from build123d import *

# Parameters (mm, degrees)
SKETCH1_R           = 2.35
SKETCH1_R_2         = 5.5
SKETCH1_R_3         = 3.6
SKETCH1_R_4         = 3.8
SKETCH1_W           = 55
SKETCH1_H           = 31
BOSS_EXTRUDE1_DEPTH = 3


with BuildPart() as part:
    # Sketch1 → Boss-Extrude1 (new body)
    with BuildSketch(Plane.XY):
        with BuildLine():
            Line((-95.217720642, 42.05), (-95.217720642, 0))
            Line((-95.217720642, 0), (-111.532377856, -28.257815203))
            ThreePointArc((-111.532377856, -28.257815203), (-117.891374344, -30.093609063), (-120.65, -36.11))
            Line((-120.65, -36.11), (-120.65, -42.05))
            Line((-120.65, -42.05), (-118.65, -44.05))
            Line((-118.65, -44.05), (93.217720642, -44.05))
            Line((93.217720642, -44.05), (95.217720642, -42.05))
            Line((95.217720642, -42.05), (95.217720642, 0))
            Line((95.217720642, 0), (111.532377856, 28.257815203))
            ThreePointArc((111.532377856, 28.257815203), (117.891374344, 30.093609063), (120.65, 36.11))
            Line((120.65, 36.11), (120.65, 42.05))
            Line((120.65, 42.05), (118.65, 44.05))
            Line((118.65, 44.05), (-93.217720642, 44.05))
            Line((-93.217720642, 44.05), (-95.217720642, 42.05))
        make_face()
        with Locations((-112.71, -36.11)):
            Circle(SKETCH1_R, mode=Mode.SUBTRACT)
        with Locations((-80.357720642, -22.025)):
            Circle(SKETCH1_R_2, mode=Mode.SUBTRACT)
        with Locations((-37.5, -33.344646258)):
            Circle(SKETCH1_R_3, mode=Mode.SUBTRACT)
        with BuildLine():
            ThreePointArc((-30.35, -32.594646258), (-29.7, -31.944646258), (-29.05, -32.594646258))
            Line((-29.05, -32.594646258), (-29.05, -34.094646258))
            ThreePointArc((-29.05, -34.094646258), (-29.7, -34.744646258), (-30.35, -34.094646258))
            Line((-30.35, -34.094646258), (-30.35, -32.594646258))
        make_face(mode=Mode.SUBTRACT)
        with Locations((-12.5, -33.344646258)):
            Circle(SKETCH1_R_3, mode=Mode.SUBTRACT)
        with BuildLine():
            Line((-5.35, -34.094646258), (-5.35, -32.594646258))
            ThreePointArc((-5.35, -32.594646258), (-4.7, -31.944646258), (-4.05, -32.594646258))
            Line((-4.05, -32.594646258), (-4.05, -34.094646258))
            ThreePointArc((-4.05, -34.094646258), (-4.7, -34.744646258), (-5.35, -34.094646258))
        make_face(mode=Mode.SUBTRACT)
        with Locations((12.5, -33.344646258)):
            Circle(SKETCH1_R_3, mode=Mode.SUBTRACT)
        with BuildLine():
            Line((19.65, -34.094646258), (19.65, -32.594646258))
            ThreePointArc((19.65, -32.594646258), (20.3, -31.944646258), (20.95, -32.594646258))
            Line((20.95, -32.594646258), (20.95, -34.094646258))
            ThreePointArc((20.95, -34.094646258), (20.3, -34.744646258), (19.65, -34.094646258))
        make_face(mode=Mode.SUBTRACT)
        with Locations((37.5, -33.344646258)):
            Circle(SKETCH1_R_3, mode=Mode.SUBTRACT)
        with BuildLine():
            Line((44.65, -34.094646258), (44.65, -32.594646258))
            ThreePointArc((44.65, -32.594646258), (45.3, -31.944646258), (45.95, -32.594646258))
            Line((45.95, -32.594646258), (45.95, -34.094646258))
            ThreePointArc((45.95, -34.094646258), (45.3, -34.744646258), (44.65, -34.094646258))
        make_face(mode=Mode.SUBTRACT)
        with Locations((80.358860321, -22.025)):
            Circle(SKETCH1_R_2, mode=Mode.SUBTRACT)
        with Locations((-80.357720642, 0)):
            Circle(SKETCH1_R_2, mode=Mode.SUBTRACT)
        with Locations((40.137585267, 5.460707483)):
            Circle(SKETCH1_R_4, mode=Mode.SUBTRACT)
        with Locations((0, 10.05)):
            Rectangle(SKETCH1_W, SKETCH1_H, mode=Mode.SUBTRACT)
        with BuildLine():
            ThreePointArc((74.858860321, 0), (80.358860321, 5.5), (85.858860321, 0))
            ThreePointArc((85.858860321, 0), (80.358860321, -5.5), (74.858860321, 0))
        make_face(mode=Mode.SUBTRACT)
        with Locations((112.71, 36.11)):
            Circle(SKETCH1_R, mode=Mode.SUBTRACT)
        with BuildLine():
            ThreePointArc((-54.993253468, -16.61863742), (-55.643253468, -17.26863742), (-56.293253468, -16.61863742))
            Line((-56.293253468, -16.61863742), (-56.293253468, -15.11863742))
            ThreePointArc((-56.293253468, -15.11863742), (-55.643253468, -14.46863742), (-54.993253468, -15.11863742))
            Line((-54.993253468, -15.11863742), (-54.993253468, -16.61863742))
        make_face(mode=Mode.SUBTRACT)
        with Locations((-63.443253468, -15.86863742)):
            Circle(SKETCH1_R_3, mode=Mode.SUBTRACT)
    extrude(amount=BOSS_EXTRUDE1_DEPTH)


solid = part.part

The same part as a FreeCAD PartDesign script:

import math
import FreeCAD as App
import Part
import Sketcher
from FreeCAD import Vector
Q = App.Units.Quantity

doc = App.newDocument("Part")
params = doc.addObject("Spreadsheet::Sheet", "Params")
for row, (alias, value) in enumerate([
    ("sketch1_diameter", "11 mm"),
    ("sketch1_diameter2", "4.7 mm"),
    ("sketch1_diameter3", "7.2 mm"),
    ("sketch1_diameter4", "7.6 mm"),
    ("sketch1_width", "55 mm"),
    ("pad1_length", "3 mm"),
], start=1):
    params.set(f"A{row}", alias)
    params.set(f"B{row}", "=" + value)
    params.setAlias(f"B{row}", alias)

body = doc.addObject("PartDesign::Body", "Body")

sketch1 = body.newObject("Sketcher::SketchObject", "Sketch")
sketch1.AttachmentSupport = (doc.getObject("XY_Plane"), [""])
sketch1.MapMode = "FlatFace"
sketch1.addGeometry([
    Part.LineSegment(Vector(-95.2, 42, 0), Vector(-95.2, 0, 0)),
    Part.LineSegment(Vector(-95.2, 0, 0), Vector(-111.5, -28.3, 0)),
    Part.ArcOfCircle(Part.Circle(Vector(-112.7, -36.1, 0), Vector(0, 0, 1), 7.9), math.radians(81), math.radians(180)),
    Part.LineSegment(Vector(-120.7, -36.1, 0), Vector(-120.7, -42, 0)),
    Part.LineSegment(Vector(-120.7, -42, 0), Vector(-118.7, -44, 0)),
    Part.LineSegment(Vector(-118.7, -44, 0), Vector(93.2, -44, 0)),
    Part.LineSegment(Vector(93.2, -44, 0), Vector(95.2, -42, 0)),
    Part.LineSegment(Vector(95.2, -42, 0), Vector(95.2, 0, 0)),
    Part.LineSegment(Vector(95.2, 0, 0), Vector(111.5, 28.3, 0)),
    Part.ArcOfCircle(Part.Circle(Vector(112.7, 36.1, 0), Vector(0, 0, 1), 7.9), math.radians(-99), math.radians(0)),
    Part.LineSegment(Vector(120.7, 36.1, 0), Vector(120.7, 42, 0)),
    Part.LineSegment(Vector(120.7, 42, 0), Vector(118.7, 44, 0)),
    Part.LineSegment(Vector(118.7, 44, 0), Vector(-93.2, 44, 0)),
    Part.LineSegment(Vector(-93.2, 44, 0), Vector(-95.2, 42, 0)),
    Part.Circle(Vector(-112.7, -36.1, 0), Vector(0, 0, 1), 2.4),
    Part.Circle(Vector(-80.4, -22, 0), Vector(0, 0, 1), 5.5),
    Part.Circle(Vector(-37.5, -33.3, 0), Vector(0, 0, 1), 3.6),
    Part.LineSegment(Vector(-30.4, -34.1, 0), Vector(-30.4, -32.6, 0)),
    Part.ArcOfCircle(Part.Circle(Vector(-29.7, -32.6, 0), Vector(0, 0, 1), 0.7), math.radians(0), math.radians(180)),
    Part.LineSegment(Vector(-29.1, -32.6, 0), Vector(-29.1, -34.1, 0)),
    Part.ArcOfCircle(Part.Circle(Vector(-29.7, -34.1, 0), Vector(0, 0, 1), 0.7), math.radians(180), math.radians(360)),
    Part.Circle(Vector(-12.5, -33.3, 0), Vector(0, 0, 1), 3.6),
    Part.ArcOfCircle(Part.Circle(Vector(-4.7, -34.1, 0), Vector(0, 0, 1), 0.7), math.radians(180), math.radians(360)),
    Part.LineSegment(Vector(-5.3, -34.1, 0), Vector(-5.3, -32.6, 0)),
    Part.ArcOfCircle(Part.Circle(Vector(-4.7, -32.6, 0), Vector(0, 0, 1), 0.7), math.radians(0), math.radians(180)),
    Part.LineSegment(Vector(-4, -32.6, 0), Vector(-4, -34.1, 0)),
    Part.Circle(Vector(-63.4, -15.9, 0), Vector(0, 0, 1), 3.6),
    Part.LineSegment(Vector(-55, -15.1, 0), Vector(-55, -16.6, 0)),
    Part.ArcOfCircle(Part.Circle(Vector(-55.6, -16.6, 0), Vector(0, 0, 1), 0.7), math.radians(180), math.radians(360)),
    Part.LineSegment(Vector(-56.3, -16.6, 0), Vector(-56.3, -15.1, 0)),
    Part.ArcOfCircle(Part.Circle(Vector(-55.6, -15.1, 0), Vector(0, 0, 1), 0.7), math.radians(0), math.radians(180)),
    Part.Circle(Vector(12.5, -33.3, 0), Vector(0, 0, 1), 3.6),
    Part.ArcOfCircle(Part.Circle(Vector(20.3, -34.1, 0), Vector(0, 0, 1), 0.7), math.radians(180), math.radians(360)),
    Part.LineSegment(Vector(19.6, -34.1, 0), Vector(19.6, -32.6, 0)),
    Part.ArcOfCircle(Part.Circle(Vector(20.3, -32.6, 0), Vector(0, 0, 1), 0.7), math.radians(0), math.radians(180)),
    Part.LineSegment(Vector(20.9, -32.6, 0), Vector(20.9, -34.1, 0)),
    Part.Circle(Vector(37.5, -33.3, 0), Vector(0, 0, 1), 3.6),
    Part.ArcOfCircle(Part.Circle(Vector(45.3, -34.1, 0), Vector(0, 0, 1), 0.7), math.radians(180), math.radians(360)),
    Part.LineSegment(Vector(44.6, -34.1, 0), Vector(44.6, -32.6, 0)),
    Part.ArcOfCircle(Part.Circle(Vector(45.3, -32.6, 0), Vector(0, 0, 1), 0.7), math.radians(0), math.radians(180)),
    Part.LineSegment(Vector(46, -32.6, 0), Vector(46, -34.1, 0)),
    Part.Circle(Vector(80.4, -22, 0), Vector(0, 0, 1), 5.5),
    Part.Circle(Vector(-80.4, 0, 0), Vector(0, 0, 1), 5.5),
    Part.Circle(Vector(40.1, 5.5, 0), Vector(0, 0, 1), 3.8),
    Part.LineSegment(Vector(27.5, -5.5, 0), Vector(-27.5, -5.5, 0)),
    Part.LineSegment(Vector(-27.5, -5.5, 0), Vector(-27.5, 25.6, 0)),
    Part.LineSegment(Vector(-27.5, 25.6, 0), Vector(27.5, 25.6, 0)),
    Part.LineSegment(Vector(27.5, 25.6, 0), Vector(27.5, -5.5, 0)),
    Part.Circle(Vector(80.4, 0, 0), Vector(0, 0, 1), 5.5),
    Part.Circle(Vector(112.7, 36.1, 0), Vector(0, 0, 1), 2.4),
], False)
sketch1.addConstraint([
    Sketcher.Constraint("Coincident", 0, 2, 1, 1),
    Sketcher.Constraint("Coincident", 1, 2, 2, 1),
    Sketcher.Constraint("Tangent", 2, 2, 3, 1),
    Sketcher.Constraint("Coincident", 3, 2, 4, 1),
    Sketcher.Constraint("Coincident", 4, 2, 5, 1),
    Sketcher.Constraint("Coincident", 5, 2, 6, 1),
    Sketcher.Constraint("Coincident", 6, 2, 7, 1),
    Sketcher.Constraint("Coincident", 7, 2, 8, 1),
    Sketcher.Constraint("Coincident", 8, 2, 9, 1),
    Sketcher.Constraint("Tangent", 9, 2, 10, 1),
    Sketcher.Constraint("Coincident", 10, 2, 11, 1),
    Sketcher.Constraint("Coincident", 11, 2, 12, 1),
    Sketcher.Constraint("Coincident", 12, 2, 13, 1),
    Sketcher.Constraint("Coincident", 13, 2, 0, 1),
    Sketcher.Constraint("Tangent", 17, 2, 18, 2),
    Sketcher.Constraint("Tangent", 18, 1, 19, 1),
    Sketcher.Constraint("Tangent", 19, 2, 20, 2),
    Sketcher.Constraint("Tangent", 20, 1, 17, 1),
    Sketcher.Constraint("Tangent", 22, 1, 23, 1),
    Sketcher.Constraint("Tangent", 23, 2, 24, 2),
    Sketcher.Constraint("Tangent", 24, 1, 25, 1),
    Sketcher.Constraint("Tangent", 25, 2, 22, 2),
    Sketcher.Constraint("Tangent", 27, 2, 28, 2),
    Sketcher.Constraint("Tangent", 28, 1, 29, 1),
    Sketcher.Constraint("Tangent", 29, 2, 30, 2),
    Sketcher.Constraint("Tangent", 30, 1, 27, 1),
    Sketcher.Constraint("Tangent", 32, 1, 33, 1),
    Sketcher.Constraint("Tangent", 33, 2, 34, 2),
    Sketcher.Constraint("Tangent", 34, 1, 35, 1),
    Sketcher.Constraint("Tangent", 35, 2, 32, 2),
    Sketcher.Constraint("Tangent", 37, 1, 38, 1),
    Sketcher.Constraint("Tangent", 38, 2, 39, 2),
    Sketcher.Constraint("Tangent", 39, 1, 40, 1),
    Sketcher.Constraint("Tangent", 40, 2, 37, 2),
    Sketcher.Constraint("Coincident", 44, 2, 45, 1),
    Sketcher.Constraint("Coincident", 45, 2, 46, 1),
    Sketcher.Constraint("Coincident", 46, 2, 47, 1),
    Sketcher.Constraint("Coincident", 47, 2, 44, 1),
    Sketcher.Constraint("Vertical", 0),
    Sketcher.Constraint("Vertical", 3),
    Sketcher.Constraint("Horizontal", 5),
    Sketcher.Constraint("Vertical", 7),
    Sketcher.Constraint("Vertical", 10),
    Sketcher.Constraint("Horizontal", 12),
    Sketcher.Constraint("Vertical", 17),
    Sketcher.Constraint("Vertical", 19),
    Sketcher.Constraint("Vertical", 23),
    Sketcher.Constraint("Vertical", 25),
    Sketcher.Constraint("Vertical", 27),
    Sketcher.Constraint("Vertical", 29),
    Sketcher.Constraint("Vertical", 33),
    Sketcher.Constraint("Vertical", 35),
    Sketcher.Constraint("Vertical", 38),
    Sketcher.Constraint("Vertical", 40),
    Sketcher.Constraint("Horizontal", 44),
    Sketcher.Constraint("Vertical", 45),
    Sketcher.Constraint("Horizontal", 46),
    Sketcher.Constraint("Vertical", 47),
    Sketcher.Constraint("Coincident", 14, 3, 2, 3),
    Sketcher.Constraint("Coincident", 49, 3, 9, 3),
    Sketcher.Constraint("Equal", 2, 9),
    Sketcher.Constraint("Equal", 16, 21),
    Sketcher.Constraint("Equal", 20, 22),
    Sketcher.Constraint("Equal", 21, 26),
    Sketcher.Constraint("Equal", 24, 28),
    Sketcher.Constraint("Equal", 26, 31),
    Sketcher.Constraint("Equal", 30, 32),
    Sketcher.Constraint("Equal", 31, 36),
    Sketcher.Constraint("Equal", 34, 37),
    Sketcher.Constraint("Equal", 15, 41),
    Sketcher.Constraint("Equal", 41, 42),
    Sketcher.Constraint("Equal", 42, 48),
    Sketcher.Constraint("Equal", 14, 49),
    Sketcher.Constraint("Symmetric", 2, 3, 9, 3, -1, 1),
    Sketcher.Constraint("Symmetric", 0, 2, 7, 2, -1, 1),
    Sketcher.Constraint("Symmetric", 4, 2, 11, 2, -1, 1),
    Sketcher.Constraint("Symmetric", 21, 3, 31, 3, -2),
    Sketcher.Constraint("Symmetric", 16, 3, 36, 3, -2),
    Sketcher.Constraint("PointOnObject", 42, 3, -1),
    Sketcher.Constraint("PointOnObject", 48, 3, -1),
    Sketcher.Constraint("PointOnObject", 0, 2, -1),
    Sketcher.Constraint("Perpendicular", 4, 6),
    Sketcher.Constraint("Parallel", 1, 8),
    Sketcher.Constraint("Perpendicular", 6, 11),
    Sketcher.Constraint("Perpendicular", 11, 13),
    Sketcher.Constraint("Horizontal", 16, 3, 21, 3),
    Sketcher.Constraint("Horizontal", 20, 3, 22, 3),
    Sketcher.Constraint("Horizontal", 18, 3, 24, 3),
    Sketcher.Constraint("Horizontal", 22, 3, 32, 3),
    Sketcher.Constraint("Horizontal", 24, 3, 34, 3),
    Sketcher.Constraint("Horizontal", 32, 3, 37, 3),
    Sketcher.Constraint("Horizontal", 34, 3, 39, 3),
    Sketcher.Constraint("Horizontal", 15, 3, 41, 3),
    Sketcher.Constraint("Horizontal", 3, 2, 6, 2),
    Sketcher.Constraint("Horizontal", 10, 2, 13, 2),
    Sketcher.Constraint("Vertical", 15, 3, 42, 3),
    Sketcher.Constraint("Vertical", 41, 3, 48, 3),
    Sketcher.Constraint("Equal", 25, 27),
    Sketcher.Constraint("Equal", 4, 6),
    Sketcher.Constraint("Diameter", 15, 11.0),
    Sketcher.Constraint("Diameter", 14, 4.7),
    Sketcher.Constraint("Diameter", 16, 7.2),
    Sketcher.Constraint("Diameter", 43, 7.6),
    Sketcher.Constraint("DistanceX", 44, 2, 44, 1, 55.0),
    Sketcher.Constraint("DistanceY", 45, 1, 45, 2, 31.0),
    Sketcher.Constraint("Angle", 1, Q("-120 deg")),
    Sketcher.Constraint("Radius", 2, 7.94),
    Sketcher.Constraint("Radius", 18, 0.65),
    Sketcher.Constraint("DistanceY", 17, 1, 17, 2, 1.5),
    Sketcher.Constraint("DistanceY", 0, 2, 0, 1, 42.05),
    Sketcher.Constraint("DistanceY", 3, 2, 3, 1, 5.94),
    Sketcher.Constraint("DistanceX", 16, 3, -1, 1, 37.5),
    Sketcher.Constraint("DistanceX", 18, 3, -1, 1, 29.7),
    Sketcher.Constraint("DistanceX", 21, 3, -1, 1, 12.5),
    Sketcher.Constraint("DistanceX", 22, 3, -1, 1, 4.7),
    Sketcher.Constraint("DistanceX", -1, 1, 32, 3, 20.3),
    Sketcher.Constraint("DistanceX", -1, 1, 37, 3, 45.3),
    Sketcher.Constraint("DistanceX", 44, 2, -1, 1, 27.5),
    Sketcher.Constraint("DistanceX", 2, 3, -1, 1, 112.71),
    Sketcher.Constraint("DistanceX", 4, 2, -1, 1, 118.65),
    Sketcher.Constraint("DistanceY", 44, 2, -1, 1, 5.45),
    Sketcher.Constraint("DistanceY", 15, 3, -1, 1, 22.025),
    Sketcher.Constraint("DistanceX", 5, 1, 5, 2, 211.867721),
    Sketcher.Constraint("DistanceX", 15, 3, -1, 1, 80.357721),
    Sketcher.Constraint("DistanceX", -1, 1, 41, 3, 80.35886),
    Sketcher.Constraint("DistanceY", 16, 3, -1, 1, 33.344646),
    Sketcher.Constraint("DistanceY", 18, 3, -1, 1, 32.594646),
    Sketcher.Constraint("DistanceX", 26, 3, -1, 1, 63.443253),
    Sketcher.Constraint("DistanceY", 26, 3, -1, 1, 15.868637),
    Sketcher.Constraint("DistanceX", 28, 3, -1, 1, 55.643253),
    Sketcher.Constraint("DistanceY", 28, 3, -1, 1, 16.618637),
    Sketcher.Constraint("DistanceX", -1, 1, 43, 3, 40.137585),
    Sketcher.Constraint("DistanceY", -1, 1, 43, 3, 5.460707),
])
sketch1.setExpression("Constraints[99]", "Params.sketch1_diameter")
sketch1.setExpression("Constraints[100]", "Params.sketch1_diameter2")
sketch1.setExpression("Constraints[101]", "Params.sketch1_diameter3")
sketch1.setExpression("Constraints[102]", "Params.sketch1_diameter4")
sketch1.setExpression("Constraints[103]", "Params.sketch1_width")
pad1 = body.newObject("PartDesign::Pad", "Pad")
pad1.Profile = sketch1
pad1.setExpression("Length", "Params.pad1_length")

doc.recompute()
